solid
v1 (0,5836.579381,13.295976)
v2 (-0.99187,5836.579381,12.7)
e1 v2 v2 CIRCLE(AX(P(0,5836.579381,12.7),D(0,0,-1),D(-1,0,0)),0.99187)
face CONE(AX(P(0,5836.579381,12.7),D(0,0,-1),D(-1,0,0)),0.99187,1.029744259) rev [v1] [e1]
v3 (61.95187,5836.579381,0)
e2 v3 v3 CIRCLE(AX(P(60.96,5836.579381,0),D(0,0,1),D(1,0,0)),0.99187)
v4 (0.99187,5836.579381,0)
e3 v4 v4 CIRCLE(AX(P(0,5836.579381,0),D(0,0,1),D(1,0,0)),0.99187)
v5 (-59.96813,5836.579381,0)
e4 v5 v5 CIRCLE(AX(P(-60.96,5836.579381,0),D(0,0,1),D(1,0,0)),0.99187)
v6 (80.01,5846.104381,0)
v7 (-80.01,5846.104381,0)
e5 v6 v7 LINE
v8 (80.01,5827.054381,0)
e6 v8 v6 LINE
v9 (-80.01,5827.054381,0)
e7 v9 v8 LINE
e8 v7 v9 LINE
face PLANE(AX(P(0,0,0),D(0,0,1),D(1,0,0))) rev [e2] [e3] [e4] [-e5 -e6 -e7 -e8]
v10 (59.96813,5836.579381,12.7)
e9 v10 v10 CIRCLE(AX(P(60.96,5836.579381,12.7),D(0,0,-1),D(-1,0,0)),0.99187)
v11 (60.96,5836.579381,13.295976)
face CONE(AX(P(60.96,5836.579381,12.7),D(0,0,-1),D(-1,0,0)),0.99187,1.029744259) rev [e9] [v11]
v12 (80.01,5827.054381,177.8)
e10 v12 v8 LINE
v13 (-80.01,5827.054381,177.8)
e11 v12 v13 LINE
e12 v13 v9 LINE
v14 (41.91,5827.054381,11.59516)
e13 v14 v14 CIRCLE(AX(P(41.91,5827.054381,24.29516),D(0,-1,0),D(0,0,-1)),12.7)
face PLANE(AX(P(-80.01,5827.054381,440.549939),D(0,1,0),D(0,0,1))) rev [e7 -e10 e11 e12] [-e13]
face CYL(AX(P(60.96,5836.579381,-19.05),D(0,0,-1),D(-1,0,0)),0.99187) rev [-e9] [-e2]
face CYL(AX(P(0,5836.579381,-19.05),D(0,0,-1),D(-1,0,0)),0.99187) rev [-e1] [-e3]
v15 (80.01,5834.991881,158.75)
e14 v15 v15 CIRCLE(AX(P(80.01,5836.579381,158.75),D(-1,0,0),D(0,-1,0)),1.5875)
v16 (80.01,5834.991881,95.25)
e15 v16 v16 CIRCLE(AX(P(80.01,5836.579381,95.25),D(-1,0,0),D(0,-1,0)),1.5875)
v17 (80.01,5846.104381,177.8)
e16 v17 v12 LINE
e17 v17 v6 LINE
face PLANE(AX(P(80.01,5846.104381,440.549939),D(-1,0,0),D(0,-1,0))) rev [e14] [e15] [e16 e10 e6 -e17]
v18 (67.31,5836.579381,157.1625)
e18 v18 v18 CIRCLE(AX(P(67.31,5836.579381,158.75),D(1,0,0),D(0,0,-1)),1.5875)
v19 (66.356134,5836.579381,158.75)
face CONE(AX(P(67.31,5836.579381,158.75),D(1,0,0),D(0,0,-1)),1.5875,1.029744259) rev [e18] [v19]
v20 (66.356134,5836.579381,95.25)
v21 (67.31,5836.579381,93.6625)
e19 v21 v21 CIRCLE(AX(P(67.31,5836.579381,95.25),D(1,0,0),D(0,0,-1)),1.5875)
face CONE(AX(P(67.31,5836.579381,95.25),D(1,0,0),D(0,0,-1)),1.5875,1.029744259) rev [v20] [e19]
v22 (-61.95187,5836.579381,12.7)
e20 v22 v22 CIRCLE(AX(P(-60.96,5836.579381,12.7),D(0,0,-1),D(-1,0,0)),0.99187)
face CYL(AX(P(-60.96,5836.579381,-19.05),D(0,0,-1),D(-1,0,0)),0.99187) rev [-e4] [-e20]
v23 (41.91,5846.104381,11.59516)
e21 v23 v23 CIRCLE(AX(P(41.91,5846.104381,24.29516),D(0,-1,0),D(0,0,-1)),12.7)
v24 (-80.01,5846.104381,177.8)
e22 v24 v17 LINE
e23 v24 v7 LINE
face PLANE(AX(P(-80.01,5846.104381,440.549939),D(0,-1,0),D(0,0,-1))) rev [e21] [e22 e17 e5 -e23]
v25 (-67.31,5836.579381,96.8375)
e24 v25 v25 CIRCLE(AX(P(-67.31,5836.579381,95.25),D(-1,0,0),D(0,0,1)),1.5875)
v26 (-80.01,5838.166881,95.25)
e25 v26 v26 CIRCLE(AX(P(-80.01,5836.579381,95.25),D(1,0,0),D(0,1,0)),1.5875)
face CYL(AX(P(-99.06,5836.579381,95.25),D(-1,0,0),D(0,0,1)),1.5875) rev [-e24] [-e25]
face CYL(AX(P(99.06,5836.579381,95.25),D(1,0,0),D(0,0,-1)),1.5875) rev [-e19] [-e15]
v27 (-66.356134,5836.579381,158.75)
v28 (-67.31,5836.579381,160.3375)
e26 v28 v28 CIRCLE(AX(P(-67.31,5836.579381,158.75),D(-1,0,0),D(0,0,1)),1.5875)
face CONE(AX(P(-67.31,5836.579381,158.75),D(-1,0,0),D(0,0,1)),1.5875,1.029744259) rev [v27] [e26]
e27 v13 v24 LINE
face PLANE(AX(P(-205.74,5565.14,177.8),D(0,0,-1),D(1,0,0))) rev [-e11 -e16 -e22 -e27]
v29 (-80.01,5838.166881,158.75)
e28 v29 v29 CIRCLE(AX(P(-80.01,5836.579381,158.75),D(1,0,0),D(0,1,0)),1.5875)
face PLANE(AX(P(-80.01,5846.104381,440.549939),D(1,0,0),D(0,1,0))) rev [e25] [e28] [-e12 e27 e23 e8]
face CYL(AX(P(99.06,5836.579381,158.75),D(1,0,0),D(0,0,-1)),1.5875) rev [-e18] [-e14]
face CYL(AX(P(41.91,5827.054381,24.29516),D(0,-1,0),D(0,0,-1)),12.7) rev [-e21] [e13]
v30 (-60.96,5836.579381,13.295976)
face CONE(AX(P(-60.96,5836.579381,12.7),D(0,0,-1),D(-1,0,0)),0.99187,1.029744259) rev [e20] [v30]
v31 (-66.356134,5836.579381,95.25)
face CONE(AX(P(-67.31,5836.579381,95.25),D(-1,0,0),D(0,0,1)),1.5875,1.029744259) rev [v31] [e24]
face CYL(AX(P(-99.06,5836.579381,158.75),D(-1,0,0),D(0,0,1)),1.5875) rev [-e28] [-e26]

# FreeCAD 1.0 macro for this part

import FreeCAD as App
import Part
import Sketcher

V = App.Vector
Q = App.Units.Quantity


def add_polygon(sketch, points):
    """Adds a closed chain of lines whose ends are joined by coincident constraints."""
    first, n = sketch.GeometryCount, len(points)
    for a, b in zip(points, points[1:] + points[:1]):
        sketch.addGeometry(Part.LineSegment(App.Vector(*a, 0), App.Vector(*b, 0)), False)
    for i in range(n):
        sketch.addConstraint(Sketcher.Constraint("Coincident", first + i, 2, first + (i + 1) % n, 1))

doc = App.newDocument("Part")
body = doc.addObject("PartDesign::Body", "Body")

sketch1 = body.newObject("Sketcher::SketchObject", "Sketch")
sketch1.AttachmentSupport = (doc.getObject("XY_Plane"), [""])
sketch1.MapMode = "FlatFace"
add_polygon(sketch1, [(-80, 5846), (-80, 5827), (80, 5827), (80, 5846)])
sketch1.addConstraint([
    Sketcher.Constraint("Vertical", 0),
    Sketcher.Constraint("Horizontal", 1),
    Sketcher.Constraint("Vertical", 2),
    Sketcher.Constraint("Horizontal", 3),
    Sketcher.Constraint("DistanceX", 1, 1, 1, 2, Q("6.3 in")),
    Sketcher.Constraint("DistanceY", 0, 2, 0, 1, Q("0.75 in")),
    Sketcher.Constraint("DistanceX", 0, 2, -1, 1, Q("3.15 in")),
    Sketcher.Constraint("DistanceY", -1, 1, 0, 2, 5827.054381),
])
pad1 = body.newObject("PartDesign::Pad", "Pad")
pad1.Profile = sketch1
pad1.Length = Q("7 in")

sketch2 = body.newObject("Sketcher::SketchObject", "Sketch001")
sketch2.AttachmentSupport = (doc.getObject("XY_Plane"), [""])
sketch2.MapMode = "FlatFace"
sketch2.AttachmentOffset = App.Placement(V(0, 0, -0.75 * 25.4), App.Rotation())
sketch2.addGeometry([
    Part.Circle(V(-0.2, 5756.3, 0), V(0, 0, 1), 1),
    Part.Circle(V(0, 5926.5, 0), V(0, 0, 1), 1),
    Part.Circle(V(203.2, 5926.5, 0), V(0, 0, 1), 1),
    Part.Circle(V(406.4, 5926.5, 0), V(0, 0, 1), 1),
    Part.Circle(V(406.6, 5756.3, 0), V(0, 0, 1), 1),
    Part.Circle(V(203.4, 5756.3, 0), V(0, 0, 1), 1),
    Part.Circle(V(359.6, 5737.2, 0), V(0, 0, 1), 1),
    Part.Circle(V(428.6, 5737.2, 0), V(0, 0, 1), 1),
    Part.Circle(V(421.3, 5578.5, 0), V(0, 0, 1), 1),
    Part.Circle(V(319.7, 5578.5, 0), V(0, 0, 1), 1),
    Part.Circle(V(116.5, 5578.5, 0), V(0, 0, 1), 1),
    Part.Circle(V(424.1, 5559.4, 0), V(0, 0, 1), 1),
    Part.Circle(V(358.1, 5559.4, 0), V(0, 0, 1), 1),
    Part.Circle(V(418.2, 5400.7, 0), V(0, 0, 1), 1),
    Part.Circle(V(316.6, 5400.7, 0), V(0, 0, 1), 1),
    Part.Circle(V(113.4, 5400.7, 0), V(0, 0, 1), 1),
    Part.Circle(V(419.5, 5381.6, 0), V(0, 0, 1), 1),
    Part.Circle(V(356.6, 5381.6, 0), V(0, 0, 1), 1),
    Part.Circle(V(415.2, 5222.9, 0), V(0, 0, 1), 1),
    Part.Circle(V(313.6, 5222.9, 0), V(0, 0, 1), 1),
    Part.Circle(V(110.4, 5222.9, 0), V(0, 0, 1), 1),
    Part.Circle(V(415, 5203.8, 0), V(0, 0, 1), 1),
    Part.Circle(V(355.1, 5203.8, 0), V(0, 0, 1), 1),
    Part.Circle(V(-355.1, 5203.8, 0), V(0, 0, 1), 1),
    Part.Circle(V(-415, 5203.8, 0), V(0, 0, 1), 1),
    Part.Circle(V(-110.4, 5222.9, 0), V(0, 0, 1), 1),
    Part.Circle(V(-313.6, 5222.9, 0), V(0, 0, 1), 1),
    Part.Circle(V(-415.2, 5222.9, 0), V(0, 0, 1), 1),
    Part.Circle(V(-356.6, 5381.6, 0), V(0, 0, 1), 1),
    Part.Circle(V(-419.5, 5381.6, 0), V(0, 0, 1), 1),
    Part.Circle(V(-113.4, 5400.7, 0), V(0, 0, 1), 1),
    Part.Circle(V(-316.6, 5400.7, 0), V(0, 0, 1), 1),
    Part.Circle(V(-418.2, 5400.7, 0), V(0, 0, 1), 1),
    Part.Circle(V(-358.1, 5559.4, 0), V(0, 0, 1), 1),
    Part.Circle(V(-424.1, 5559.4, 0), V(0, 0, 1), 1),
    Part.Circle(V(-116.5, 5578.5, 0), V(0, 0, 1), 1),
    Part.Circle(V(-319.7, 5578.5, 0), V(0, 0, 1), 1),
    Part.Circle(V(-421.3, 5578.5, 0), V(0, 0, 1), 1),
    Part.Circle(V(-428.6, 5737.2, 0), V(0, 0, 1), 1),
    Part.Circle(V(-359.6, 5737.2, 0), V(0, 0, 1), 1),
    Part.Circle(V(-203.4, 5756.3, 0), V(0, 0, 1), 1),
    Part.Circle(V(-406.6, 5756.3, 0), V(0, 0, 1), 1),
    Part.Circle(V(-406.4, 5926.5, 0), V(0, 0, 1), 1),
    Part.Circle(V(-203.2, 5926.5, 0), V(0, 0, 1), 1),
    Part.Circle(V(0.2, 5756.3, 0), V(0, 0, 1), 1),
    Part.Circle(V(0, 5836.6, 0), V(0, 0, 1), 1),
    Part.Circle(V(61, 5836.6, 0), V(0, 0, 1), 1),
    Part.Circle(V(-61, 5836.6, 0), V(0, 0, 1), 1),
], False)
sketch2.addConstraint([
    Sketcher.Constraint("Equal", 0, 1),
    Sketcher.Constraint("Equal", 1, 2),
    Sketcher.Constraint("Equal", 2, 3),
    Sketcher.Constraint("Equal", 3, 4),
    Sketcher.Constraint("Equal", 4, 5),
    Sketcher.Constraint("Equal", 5, 6),
    Sketcher.Constraint("Equal", 6, 7),
    Sketcher.Constraint("Equal", 7, 8),
    Sketcher.Constraint("Equal", 8, 9),
    Sketcher.Constraint("Equal", 9, 10),
    Sketcher.Constraint("Equal", 10, 11),
    Sketcher.Constraint("Equal", 11, 12),
    Sketcher.Constraint("Equal", 12, 13),
    Sketcher.Constraint("Equal", 13, 14),
    Sketcher.Constraint("Equal", 14, 15),
    Sketcher.Constraint("Equal", 15, 16),
    Sketcher.Constraint("Equal", 16, 17),
    Sketcher.Constraint("Equal", 17, 18),
    Sketcher.Constraint("Equal", 18, 19),
    Sketcher.Constraint("Equal", 19, 20),
    Sketcher.Constraint("Equal", 20, 21),
    Sketcher.Constraint("Equal", 21, 22),
    Sketcher.Constraint("Equal", 22, 23),
    Sketcher.Constraint("Equal", 23, 24),
    Sketcher.Constraint("Equal", 24, 25),
    Sketcher.Constraint("Equal", 25, 26),
    Sketcher.Constraint("Equal", 26, 27),
    Sketcher.Constraint("Equal", 27, 28),
    Sketcher.Constraint("Equal", 28, 29),
    Sketcher.Constraint("Equal", 29, 30),
    Sketcher.Constraint("Equal", 30, 31),
    Sketcher.Constraint("Equal", 31, 32),
    Sketcher.Constraint("Equal", 32, 33),
    Sketcher.Constraint("Equal", 33, 34),
    Sketcher.Constraint("Equal", 34, 35),
    Sketcher.Constraint("Equal", 35, 36),
    Sketcher.Constraint("Equal", 36, 37),
    Sketcher.Constraint("Equal", 37, 38),
    Sketcher.Constraint("Equal", 38, 39),
    Sketcher.Constraint("Equal", 39, 40),
    Sketcher.Constraint("Equal", 40, 41),
    Sketcher.Constraint("Equal", 41, 42),
    Sketcher.Constraint("Equal", 42, 43),
    Sketcher.Constraint("Equal", 43, 44),
    Sketcher.Constraint("Equal", 44, 45),
    Sketcher.Constraint("Equal", 45, 46),
    Sketcher.Constraint("Equal", 46, 47),
    Sketcher.Constraint("Symmetric", 22, 3, 23, 3, -2),
    Sketcher.Constraint("Symmetric", 21, 3, 24, 3, -2),
    Sketcher.Constraint("Symmetric", 20, 3, 25, 3, -2),
    Sketcher.Constraint("Symmetric", 19, 3, 26, 3, -2),
    Sketcher.Constraint("Symmetric", 18, 3, 27, 3, -2),
    Sketcher.Constraint("Symmetric", 17, 3, 28, 3, -2),
    Sketcher.Constraint("Symmetric", 16, 3, 29, 3, -2),
    Sketcher.Constraint("Symmetric", 15, 3, 30, 3, -2),
    Sketcher.Constraint("Symmetric", 14, 3, 31, 3, -2),
    Sketcher.Constraint("Symmetric", 13, 3, 32, 3, -2),
    Sketcher.Constraint("Symmetric", 12, 3, 33, 3, -2),
    Sketcher.Constraint("Symmetric", 11, 3, 34, 3, -2),
    Sketcher.Constraint("Symmetric", 10, 3, 35, 3, -2),
    Sketcher.Constraint("Symmetric", 9, 3, 36, 3, -2),
    Sketcher.Constraint("Symmetric", 8, 3, 37, 3, -2),
    Sketcher.Constraint("Symmetric", 7, 3, 38, 3, -2),
    Sketcher.Constraint("Symmetric", 6, 3, 39, 3, -2),
    Sketcher.Constraint("Symmetric", 5, 3, 40, 3, -2),
    Sketcher.Constraint("Symmetric", 4, 3, 41, 3, -2),
    Sketcher.Constraint("Symmetric", 3, 3, 42, 3, -2),
    Sketcher.Constraint("Symmetric", 2, 3, 43, 3, -2),
    Sketcher.Constraint("Symmetric", 0, 3, 44, 3, -2),
    Sketcher.Constraint("Symmetric", 46, 3, 47, 3, -2),
    Sketcher.Constraint("PointOnObject", 1, 3, -2),
    Sketcher.Constraint("PointOnObject", 45, 3, -2),
    Sketcher.Constraint("Horizontal", 1, 3, 2, 3),
    Sketcher.Constraint("Horizontal", 2, 3, 3, 3),
    Sketcher.Constraint("Horizontal", 0, 3, 4, 3),
    Sketcher.Constraint("Horizontal", 4, 3, 5, 3),
    Sketcher.Constraint("Horizontal", 6, 3, 7, 3),
    Sketcher.Constraint("Horizontal", 8, 3, 9, 3),
    Sketcher.Constraint("Horizontal", 9, 3, 10, 3),
    Sketcher.Constraint("Horizontal", 11, 3, 12, 3),
    Sketcher.Constraint("Horizontal", 13, 3, 14, 3),
    Sketcher.Constraint("Horizontal", 14, 3, 15, 3),
    Sketcher.Constraint("Horizontal", 16, 3, 17, 3),
    Sketcher.Constraint("Horizontal", 18, 3, 19, 3),
    Sketcher.Constraint("Horizontal", 19, 3, 20, 3),
    Sketcher.Constraint("Horizontal", 21, 3, 22, 3),
    Sketcher.Constraint("Horizontal", 45, 3, 46, 3),
    Sketcher.Constraint("DistanceX", -1, 1, 2, 3, Q("8 in")),
    Sketcher.Constraint("DistanceX", -1, 1, 3, 3, Q("16 in")),
    Sketcher.Constraint("DistanceX", 5, 3, 4, 3, Q("8 in")),
    Sketcher.Constraint("DistanceY", 8, 3, 4, 3, Q("7 in")),
    Sketcher.Constraint("DistanceX", 9, 3, 8, 3, Q("4 in")),
    Sketcher.Constraint("DistanceX", 10, 3, 9, 3, Q("8 in")),
    Sketcher.Constraint("DistanceY", 11, 3, 7, 3, Q("7 in")),
    Sketcher.Constraint("DistanceY", 13, 3, 8, 3, Q("7 in")),
    Sketcher.Constraint("DistanceX", 14, 3, 13, 3, Q("4 in")),
    Sketcher.Constraint("DistanceX", 15, 3, 14, 3, Q("8 in")),
    Sketcher.Constraint("DistanceY", 16, 3, 11, 3, Q("7 in")),
    Sketcher.Constraint("DistanceY", 18, 3, 13, 3, Q("7 in")),
    Sketcher.Constraint("DistanceX", 19, 3, 18, 3, Q("4 in")),
    Sketcher.Constraint("DistanceX", 20, 3, 19, 3, Q("8 in")),
    Sketcher.Constraint("DistanceY", 21, 3, 16, 3, Q("7 in")),
    Sketcher.Constraint("DistanceX", 40, 3, 0, 3, Q("8 in")),
    Sketcher.Constraint("Diameter", 0, Q("0.0781 in")),
    Sketcher.Constraint("DistanceX", -1, 1, 46, 3, Q("2.4 in")),
    Sketcher.Constraint("DistanceY", 0, 3, 1, 3, Q("6.7 in")),
    Sketcher.Constraint("DistanceY", 6, 3, 4, 3, Q("0.75 in")),
    Sketcher.Constraint("DistanceY", -1, 1, 0, 3, Q("226.625 in")),
    Sketcher.Constraint("DistanceX", 0, 3, -1, 1, 0.162188),
    Sketcher.Constraint("DistanceX", -1, 1, 6, 3, 359.61796),
    Sketcher.Constraint("DistanceX", -1, 1, 7, 3, 428.613879),
    Sketcher.Constraint("DistanceX", -1, 1, 11, 3, 424.072611),
    Sketcher.Constraint("DistanceX", -1, 1, 13, 3, 418.230271),
    Sketcher.Constraint("DistanceX", -1, 1, 18, 3, 415.202759),
    Sketcher.Constraint("DistanceX", -1, 1, 22, 3, 355.076691),
    Sketcher.Constraint("DistanceY", -1, 1, 45, 3, 5836.579381),
    Sketcher.Constraint("DistanceX", 0, 3, 10, 3, 116.619972),
    Sketcher.Constraint("DistanceX", 9, 3, 12, 3, 38.44642),
    Sketcher.Constraint("DistanceX", 13, 3, 16, 3, 1.301071),
    Sketcher.Constraint("DistanceX", 17, 3, 18, 3, 58.612312),
    Sketcher.Constraint("DistanceX", 21, 3, 16, 3, 4.541268),
])
doc.recompute()
hole = body.newObject("PartDesign::Hole", "Hole")
hole.Profile = sketch2
hole.ThreadType = "None"
hole.Diameter = Q("0.0781 in")
hole.DepthType = "Dimension"
hole.Depth = Q("1.25 in")
hole.DrillPoint = "Angled"
hole.DrillPointAngle = 118
hole.HoleCutType = "Countersink"
hole.HoleCutDiameter = Q("0.4 in")
hole.HoleCutCountersinkAngle = 82
hole.Reversed = True

sketch3 = body.newObject("Sketcher::SketchObject", "Sketch002")
sketch3.AttachmentSupport = (doc.getObject("YZ_Plane"), [""])
sketch3.MapMode = "FlatFace"
sketch3.AttachmentOffset = App.Placement(V(0, 0, 3.9 * 25.4), App.Rotation())
sketch3.addGeometry([
    Part.Circle(V(5836.6, 95.2, 0), V(0, 0, 1), 1.6),
    Part.Circle(V(5836.6, 158.8, 0), V(0, 0, 1), 1.6),
], False)
sketch3.addConstraint([
    Sketcher.Constraint("Equal", 0, 1),
    Sketcher.Constraint("Vertical", 0, 3, 1, 3),
    Sketcher.Constraint("Diameter", 0, Q("0.125 in")),
    Sketcher.Constraint("DistanceY", 0, 3, 1, 3, Q("2.5 in")),
    Sketcher.Constraint("DistanceY", -1, 1, 0, 3, Q("3.75 in")),
    Sketcher.Constraint("DistanceX", -1, 1, 0, 3, 5836.579381),
])
doc.recompute()
hole2 = body.newObject("PartDesign::Hole", "Hole001")
hole2.Profile = sketch3
hole2.ThreadType = "None"
hole2.Diameter = Q("0.125 in")
hole2.DepthType = "Dimension"
hole2.Depth = Q("1.25 in")
hole2.DrillPoint = "Angled"
hole2.DrillPointAngle = 118
hole2.HoleCutType = "Countersink"
hole2.HoleCutDiameter = Q("0.4 in")
hole2.HoleCutCountersinkAngle = 82

sketch4 = body.newObject("Sketcher::SketchObject", "Sketch003")
sketch4.AttachmentSupport = (doc.getObject("YZ_Plane"), [""])
sketch4.MapMode = "FlatFace"
sketch4.AttachmentOffset = App.Placement(V(0, 0, -3.9 * 25.4), App.Rotation())
sketch4.addGeometry([
    Part.Circle(V(5836.6, 95.2, 0), V(0, 0, 1), 1.6),
    Part.Circle(V(5836.6, 158.8, 0), V(0, 0, 1), 1.6),
], False)
sketch4.addConstraint([
    Sketcher.Constraint("Equal", 0, 1),
    Sketcher.Constraint("Vertical", 0, 3, 1, 3),
    Sketcher.Constraint("Diameter", 0, Q("0.125 in")),
    Sketcher.Constraint("DistanceY", 0, 3, 1, 3, Q("2.5 in")),
    Sketcher.Constraint("DistanceY", -1, 1, 0, 3, Q("3.75 in")),
    Sketcher.Constraint("DistanceX", -1, 1, 0, 3, 5836.579381),
])
doc.recompute()
hole3 = body.newObject("PartDesign::Hole", "Hole002")
hole3.Profile = sketch4
hole3.ThreadType = "None"
hole3.Diameter = Q("0.125 in")
hole3.DepthType = "Dimension"
hole3.Depth = Q("1.25 in")
hole3.DrillPoint = "Angled"
hole3.DrillPointAngle = 118
hole3.HoleCutType = "Countersink"
hole3.HoleCutDiameter = Q("0.4 in")
hole3.HoleCutCountersinkAngle = 82
hole3.Reversed = True

sketch5 = body.newObject("Sketcher::SketchObject", "Sketch004")
sketch5.AttachmentSupport = (doc.getObject("XZ_Plane"), [""])
sketch5.MapMode = "FlatFace"
sketch5.AttachmentOffset = App.Placement(V(0, 0, -5827.054381), App.Rotation())
sketch5.addGeometry(Part.Circle(V(42, 24, 0), V(0, 0, 1), 13), False)
sketch5.addConstraint([
    Sketcher.Constraint("Diameter", 0, Q("1 in")),
    Sketcher.Constraint("DistanceX", -1, 1, 0, 3, Q("1.65 in")),
    Sketcher.Constraint("DistanceY", -1, 1, 0, 3, 24.29516),
])
doc.recompute()
hole4 = body.newObject("PartDesign::Hole", "Hole003")
hole4.Profile = sketch5
hole4.ThreadType = "None"
hole4.Diameter = Q("1 in")
hole4.DepthType = "Dimension"
hole4.Depth = Q("0.75 in")
hole4.DrillPoint = "Flat"

doc.recompute()
